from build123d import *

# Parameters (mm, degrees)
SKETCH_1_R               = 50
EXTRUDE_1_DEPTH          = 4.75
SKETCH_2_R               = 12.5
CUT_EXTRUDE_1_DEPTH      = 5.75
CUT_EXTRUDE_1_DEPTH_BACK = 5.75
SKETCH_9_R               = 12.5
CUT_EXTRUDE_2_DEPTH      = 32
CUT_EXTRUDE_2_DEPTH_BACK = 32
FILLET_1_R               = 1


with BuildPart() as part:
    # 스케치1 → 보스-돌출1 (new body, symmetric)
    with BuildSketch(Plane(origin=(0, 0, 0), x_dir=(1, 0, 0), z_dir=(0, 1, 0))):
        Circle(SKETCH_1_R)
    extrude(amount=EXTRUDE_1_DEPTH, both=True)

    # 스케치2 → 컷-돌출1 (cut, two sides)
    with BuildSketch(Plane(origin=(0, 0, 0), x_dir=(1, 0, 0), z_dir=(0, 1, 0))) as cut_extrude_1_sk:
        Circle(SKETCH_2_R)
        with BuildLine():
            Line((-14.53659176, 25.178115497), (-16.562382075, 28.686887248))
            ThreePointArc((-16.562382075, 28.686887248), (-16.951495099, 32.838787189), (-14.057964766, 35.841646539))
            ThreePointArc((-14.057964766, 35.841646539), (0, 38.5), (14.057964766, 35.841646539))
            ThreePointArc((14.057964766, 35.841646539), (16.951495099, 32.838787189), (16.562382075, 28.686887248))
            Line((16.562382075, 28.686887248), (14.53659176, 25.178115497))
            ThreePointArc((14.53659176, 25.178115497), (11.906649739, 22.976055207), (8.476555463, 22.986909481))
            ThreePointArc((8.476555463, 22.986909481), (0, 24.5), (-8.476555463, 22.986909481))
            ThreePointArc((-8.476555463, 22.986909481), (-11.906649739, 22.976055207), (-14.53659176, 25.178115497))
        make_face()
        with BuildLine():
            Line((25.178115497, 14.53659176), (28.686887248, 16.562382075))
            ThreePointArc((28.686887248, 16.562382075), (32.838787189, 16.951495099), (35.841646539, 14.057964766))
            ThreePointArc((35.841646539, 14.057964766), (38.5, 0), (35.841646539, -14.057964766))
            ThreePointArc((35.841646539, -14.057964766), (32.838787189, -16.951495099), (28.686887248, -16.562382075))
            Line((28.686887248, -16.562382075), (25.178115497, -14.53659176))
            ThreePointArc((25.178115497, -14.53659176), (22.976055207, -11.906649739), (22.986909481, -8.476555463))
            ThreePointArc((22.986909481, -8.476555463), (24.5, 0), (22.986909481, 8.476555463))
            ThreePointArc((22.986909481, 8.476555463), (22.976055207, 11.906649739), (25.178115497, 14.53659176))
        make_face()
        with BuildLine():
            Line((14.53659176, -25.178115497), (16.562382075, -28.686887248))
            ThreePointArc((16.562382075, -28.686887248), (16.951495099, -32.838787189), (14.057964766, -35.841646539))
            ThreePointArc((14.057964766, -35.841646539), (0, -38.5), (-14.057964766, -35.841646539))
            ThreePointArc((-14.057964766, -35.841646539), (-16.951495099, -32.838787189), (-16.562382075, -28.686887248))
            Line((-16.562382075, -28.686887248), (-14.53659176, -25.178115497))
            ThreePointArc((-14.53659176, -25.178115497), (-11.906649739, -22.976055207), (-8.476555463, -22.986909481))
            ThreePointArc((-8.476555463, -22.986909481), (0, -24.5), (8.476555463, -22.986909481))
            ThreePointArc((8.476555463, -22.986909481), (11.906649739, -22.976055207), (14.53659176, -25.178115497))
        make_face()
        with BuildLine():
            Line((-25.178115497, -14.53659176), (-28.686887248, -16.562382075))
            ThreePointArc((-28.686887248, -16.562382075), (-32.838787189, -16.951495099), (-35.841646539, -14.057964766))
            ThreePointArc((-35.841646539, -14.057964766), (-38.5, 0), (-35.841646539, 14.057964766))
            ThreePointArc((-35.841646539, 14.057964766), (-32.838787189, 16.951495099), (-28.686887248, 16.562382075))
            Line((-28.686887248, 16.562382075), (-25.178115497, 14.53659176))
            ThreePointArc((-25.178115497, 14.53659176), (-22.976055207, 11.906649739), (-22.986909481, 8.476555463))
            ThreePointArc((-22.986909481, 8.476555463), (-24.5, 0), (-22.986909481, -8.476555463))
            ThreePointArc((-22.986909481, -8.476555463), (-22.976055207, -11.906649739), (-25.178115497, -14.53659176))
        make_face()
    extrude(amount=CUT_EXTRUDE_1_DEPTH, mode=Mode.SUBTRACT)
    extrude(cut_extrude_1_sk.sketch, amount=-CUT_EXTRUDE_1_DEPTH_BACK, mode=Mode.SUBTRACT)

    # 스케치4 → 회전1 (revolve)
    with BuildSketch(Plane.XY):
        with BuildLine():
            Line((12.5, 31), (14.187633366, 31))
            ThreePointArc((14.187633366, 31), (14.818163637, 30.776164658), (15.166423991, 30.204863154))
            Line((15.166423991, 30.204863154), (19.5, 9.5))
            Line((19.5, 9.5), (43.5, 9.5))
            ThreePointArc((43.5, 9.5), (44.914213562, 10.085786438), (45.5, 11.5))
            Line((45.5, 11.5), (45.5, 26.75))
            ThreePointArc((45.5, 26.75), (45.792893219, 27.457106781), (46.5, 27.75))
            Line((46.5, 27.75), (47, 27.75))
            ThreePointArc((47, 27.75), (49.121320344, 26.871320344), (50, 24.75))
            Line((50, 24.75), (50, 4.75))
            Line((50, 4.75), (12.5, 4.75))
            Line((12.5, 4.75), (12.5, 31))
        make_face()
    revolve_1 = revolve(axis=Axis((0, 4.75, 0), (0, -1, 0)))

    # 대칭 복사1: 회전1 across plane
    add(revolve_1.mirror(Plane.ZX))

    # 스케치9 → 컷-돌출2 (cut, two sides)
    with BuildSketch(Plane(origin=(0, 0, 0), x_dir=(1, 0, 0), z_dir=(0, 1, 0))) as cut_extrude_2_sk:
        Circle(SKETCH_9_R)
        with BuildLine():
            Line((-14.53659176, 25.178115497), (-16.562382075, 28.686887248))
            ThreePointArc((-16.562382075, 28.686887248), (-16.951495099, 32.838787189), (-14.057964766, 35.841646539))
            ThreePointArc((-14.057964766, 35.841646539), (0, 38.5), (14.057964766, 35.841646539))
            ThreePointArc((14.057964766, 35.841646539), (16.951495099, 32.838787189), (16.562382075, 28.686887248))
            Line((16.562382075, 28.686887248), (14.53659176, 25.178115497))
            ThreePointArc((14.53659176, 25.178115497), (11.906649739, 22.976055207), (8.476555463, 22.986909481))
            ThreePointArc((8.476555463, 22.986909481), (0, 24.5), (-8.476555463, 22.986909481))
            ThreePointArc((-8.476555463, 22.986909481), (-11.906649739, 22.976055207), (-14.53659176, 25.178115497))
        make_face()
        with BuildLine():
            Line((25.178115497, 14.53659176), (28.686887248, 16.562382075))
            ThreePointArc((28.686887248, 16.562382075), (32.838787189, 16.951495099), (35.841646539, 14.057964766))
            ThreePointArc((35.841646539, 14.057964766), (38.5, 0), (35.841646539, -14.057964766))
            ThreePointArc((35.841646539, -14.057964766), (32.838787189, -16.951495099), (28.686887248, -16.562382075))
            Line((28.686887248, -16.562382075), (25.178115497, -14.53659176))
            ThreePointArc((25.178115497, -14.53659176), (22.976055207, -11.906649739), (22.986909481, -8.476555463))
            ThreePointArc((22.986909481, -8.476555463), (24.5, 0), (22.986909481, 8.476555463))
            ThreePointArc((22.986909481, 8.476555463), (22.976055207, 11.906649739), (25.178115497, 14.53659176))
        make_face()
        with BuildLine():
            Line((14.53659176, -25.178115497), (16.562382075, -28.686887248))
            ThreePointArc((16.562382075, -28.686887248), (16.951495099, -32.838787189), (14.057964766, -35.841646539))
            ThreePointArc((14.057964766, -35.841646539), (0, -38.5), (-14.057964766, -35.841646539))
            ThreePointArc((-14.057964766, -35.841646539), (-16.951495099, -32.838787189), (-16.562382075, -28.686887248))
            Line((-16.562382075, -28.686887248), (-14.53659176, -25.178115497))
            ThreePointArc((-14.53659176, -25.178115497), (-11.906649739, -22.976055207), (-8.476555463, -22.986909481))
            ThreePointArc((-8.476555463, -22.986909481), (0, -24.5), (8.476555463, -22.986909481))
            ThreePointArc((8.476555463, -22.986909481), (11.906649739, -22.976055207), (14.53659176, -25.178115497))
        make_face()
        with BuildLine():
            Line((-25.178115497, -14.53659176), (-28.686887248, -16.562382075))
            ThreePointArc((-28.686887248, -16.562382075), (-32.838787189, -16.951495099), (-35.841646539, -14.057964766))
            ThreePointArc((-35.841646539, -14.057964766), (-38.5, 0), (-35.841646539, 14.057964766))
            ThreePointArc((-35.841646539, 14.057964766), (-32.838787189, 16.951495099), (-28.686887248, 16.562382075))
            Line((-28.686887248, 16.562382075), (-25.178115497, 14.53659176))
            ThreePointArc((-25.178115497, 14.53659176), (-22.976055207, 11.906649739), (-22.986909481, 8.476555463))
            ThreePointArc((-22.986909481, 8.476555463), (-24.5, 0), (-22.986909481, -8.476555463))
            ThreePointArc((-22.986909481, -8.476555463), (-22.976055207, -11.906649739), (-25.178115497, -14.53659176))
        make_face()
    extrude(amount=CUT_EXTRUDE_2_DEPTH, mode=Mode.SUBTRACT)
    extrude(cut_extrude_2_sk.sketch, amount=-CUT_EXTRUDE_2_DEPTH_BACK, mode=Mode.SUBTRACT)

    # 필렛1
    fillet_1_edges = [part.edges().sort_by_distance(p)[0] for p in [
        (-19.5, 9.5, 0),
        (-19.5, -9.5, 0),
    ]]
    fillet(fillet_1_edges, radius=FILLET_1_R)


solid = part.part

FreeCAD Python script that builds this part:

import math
import FreeCAD as App
import Part
import Sketcher
from FreeCAD import Vector
Q = App.Units.Quantity


def edges_at(feature, points):
    """Names of the edges that pass closest to the given points."""
    edges = feature.Shape.Edges
    near = lambda p: min(range(len(edges)), key=lambda i: edges[i].distToShape(Part.Vertex(*p))[0])
    return sorted({f"Edge{near(p) + 1}" for p in points})

doc = App.newDocument("Part")
body = doc.addObject("PartDesign::Body", "Body")

# Sketch on XZ plane
sketch1 = body.newObject("Sketcher::SketchObject", "Sketch")
sketch1.AttachmentSupport = (doc.getObject("XZ_Plane"), [""])
sketch1.MapMode = "FlatFace"
sketch1.addGeometry(Part.Circle(Vector(0, 0, 0), Vector(0, 0, 1), 50), False)
sketch1.addConstraint([
    Sketcher.Constraint("Coincident", 0, 3, -1, 1),
    Sketcher.Constraint("Diameter", 0, 100.0),
])
pad1 = body.newObject("PartDesign::Pad", "Pad")
pad1.Profile = sketch1
pad1.Length = 9.5
pad1.Midplane = True

# Sketch on XZ plane
sketch2 = body.newObject("Sketcher::SketchObject", "Sketch001")
sketch2.AttachmentSupport = (doc.getObject("XZ_Plane"), [""])
sketch2.MapMode = "FlatFace"
sketch2.addGeometry([
    Part.Circle(Vector(0, 0, 0), Vector(0, 0, 1), 12.5),  # 0
    Part.LineSegment(Vector(-16.562382, -28.686887, 0), Vector(-14.536592, -25.178115, 0)),  # 1
    Part.ArcOfCircle(Part.Circle(Vector(-10.206465, -27.678115, 0), Vector(0, 0, 1), 5), math.radians(69.758257), math.radians(150)),  # 2
    Part.ArcOfCircle(Part.Circle(Vector(0, 0, 0), Vector(0, 0, 1), 24.5), math.radians(-110.241743), math.radians(-69.758257)),  # 3
    Part.ArcOfCircle(Part.Circle(Vector(10.206465, -27.678115, 0), Vector(0, 0, 1), 5), math.radians(30), math.radians(110.241743)),  # 4
    Part.LineSegment(Vector(14.536592, -25.178115, 0), Vector(16.562382, -28.686887, 0)),  # 5
    Part.ArcOfCircle(Part.Circle(Vector(12.232255, -31.186887, 0), Vector(0, 0, 1), 5), math.radians(-68.583682), math.radians(30)),  # 6
    Part.ArcOfCircle(Part.Circle(Vector(0, 0, 0), Vector(0, 0, 1), 38.5), math.radians(-111.416318), math.radians(-68.583682)),  # 7
    Part.ArcOfCircle(Part.Circle(Vector(-12.232255, -31.186887, 0), Vector(0, 0, 1), 5), math.radians(150), math.radians(248.583682)),  # 8
    Part.LineSegment(Vector(28.686887, -16.562382, 0), Vector(25.178115, -14.536592, 0)),  # 9
    Part.ArcOfCircle(Part.Circle(Vector(27.678115, -10.206465, 0), Vector(0, 0, 1), 5), math.radians(159.758257), math.radians(240)),  # 10
    Part.ArcOfCircle(Part.Circle(Vector(0, 0, 0), Vector(0, 0, 1), 24.5), math.radians(-20.241743), math.radians(20.241743)),  # 11
    Part.ArcOfCircle(Part.Circle(Vector(27.678115, 10.206465, 0), Vector(0, 0, 1), 5), math.radians(120), math.radians(200.241743)),  # 12
    Part.LineSegment(Vector(25.178115, 14.536592, 0), Vector(28.686887, 16.562382, 0)),  # 13
    Part.ArcOfCircle(Part.Circle(Vector(31.186887, 12.232255, 0), Vector(0, 0, 1), 5), math.radians(21.416318), math.radians(120)),  # 14
    Part.ArcOfCircle(Part.Circle(Vector(0, 0, 0), Vector(0, 0, 1), 38.5), math.radians(-21.416318), math.radians(21.416318)),  # 15
    Part.ArcOfCircle(Part.Circle(Vector(31.186887, -12.232255, 0), Vector(0, 0, 1), 5), math.radians(-120), math.radians(-21.416318)),  # 16
    Part.LineSegment(Vector(16.562382, 28.686887, 0), Vector(14.536592, 25.178115, 0)),  # 17
    Part.ArcOfCircle(Part.Circle(Vector(10.206465, 27.678115, 0), Vector(0, 0, 1), 5), math.radians(-110.241743), math.radians(-30)),  # 18
    Part.ArcOfCircle(Part.Circle(Vector(0, 0, 0), Vector(0, 0, 1), 24.5), math.radians(69.758257), math.radians(110.241743)),  # 19
    Part.ArcOfCircle(Part.Circle(Vector(-10.206465, 27.678115, 0), Vector(0, 0, 1), 5), math.radians(-150), math.radians(-69.758257)),  # 20
    Part.LineSegment(Vector(-14.536592, 25.178115, 0), Vector(-16.562382, 28.686887, 0)),  # 21
    Part.ArcOfCircle(Part.Circle(Vector(-12.232255, 31.186887, 0), Vector(0, 0, 1), 5), math.radians(111.416318), math.radians(210)),  # 22
    Part.ArcOfCircle(Part.Circle(Vector(0, 0, 0), Vector(0, 0, 1), 38.5), math.radians(68.583682), math.radians(111.416318)),  # 23
    Part.ArcOfCircle(Part.Circle(Vector(12.232255, 31.186887, 0), Vector(0, 0, 1), 5), math.radians(-30), math.radians(68.583682)),  # 24
    Part.LineSegment(Vector(-28.686887, 16.562382, 0), Vector(-25.178115, 14.536592, 0)),  # 25
    Part.ArcOfCircle(Part.Circle(Vector(-27.678115, 10.206465, 0), Vector(0, 0, 1), 5), math.radians(-20.241743), math.radians(60)),  # 26
    Part.ArcOfCircle(Part.Circle(Vector(0, 0, 0), Vector(0, 0, 1), 24.5), math.radians(159.758257), math.radians(200.241743)),  # 27
    Part.ArcOfCircle(Part.Circle(Vector(-27.678115, -10.206465, 0), Vector(0, 0, 1), 5), math.radians(-60), math.radians(20.241743)),  # 28
    Part.LineSegment(Vector(-25.178115, -14.536592, 0), Vector(-28.686887, -16.562382, 0)),  # 29
    Part.ArcOfCircle(Part.Circle(Vector(-31.186887, -12.232255, 0), Vector(0, 0, 1), 5), math.radians(-158.583682), math.radians(-60)),  # 30
    Part.ArcOfCircle(Part.Circle(Vector(0, 0, 0), Vector(0, 0, 1), 38.5), math.radians(158.583682), math.radians(201.416318)),  # 31
    Part.ArcOfCircle(Part.Circle(Vector(-31.186887, 12.232255, 0), Vector(0, 0, 1), 5), math.radians(60), math.radians(158.583682)),  # 32
], False)
sketch2.addConstraint([
    Sketcher.Constraint("Tangent", 1, 2, 2, 2),
    Sketcher.Constraint("Tangent", 2, 1, 3, 1),
    Sketcher.Constraint("Tangent", 3, 2, 4, 2),
    Sketcher.Constraint("Tangent", 4, 1, 5, 1),
    Sketcher.Constraint("Tangent", 5, 2, 6, 2),
    Sketcher.Constraint("Tangent", 6, 1, 7, 2),
    Sketcher.Constraint("Tangent", 7, 1, 8, 2),
    Sketcher.Constraint("Tangent", 8, 1, 1, 1),
    Sketcher.Constraint("Tangent", 9, 2, 10, 2),
    Sketcher.Constraint("Tangent", 10, 1, 11, 1),
    Sketcher.Constraint("Tangent", 11, 2, 12, 2),
    Sketcher.Constraint("Tangent", 12, 1, 13, 1),
    Sketcher.Constraint("Tangent", 13, 2, 14, 2),
    Sketcher.Constraint("Tangent", 14, 1, 15, 2),
    Sketcher.Constraint("Tangent", 15, 1, 16, 2),
    Sketcher.Constraint("Tangent", 16, 1, 9, 1),
    Sketcher.Constraint("Tangent", 17, 2, 18, 2),
    Sketcher.Constraint("Tangent", 18, 1, 19, 1),
    Sketcher.Constraint("Tangent", 19, 2, 20, 2),
    Sketcher.Constraint("Tangent", 20, 1, 21, 1),
    Sketcher.Constraint("Tangent", 21, 2, 22, 2),
    Sketcher.Constraint("Tangent", 22, 1, 23, 2),
    Sketcher.Constraint("Tangent", 23, 1, 24, 2),
    Sketcher.Constraint("Tangent", 24, 1, 17, 1),
    Sketcher.Constraint("Tangent", 25, 2, 26, 2),
    Sketcher.Constraint("Tangent", 26, 1, 27, 1),
    Sketcher.Constraint("Tangent", 27, 2, 28, 2),
    Sketcher.Constraint("Tangent", 28, 1, 29, 1),
    Sketcher.Constraint("Tangent", 29, 2, 30, 2),
    Sketcher.Constraint("Tangent", 30, 1, 31, 2),
    Sketcher.Constraint("Tangent", 31, 1, 32, 2),
    Sketcher.Constraint("Tangent", 32, 1, 25, 1),
    Sketcher.Constraint("Coincident", 0, 3, -1, 1),
    Sketcher.Constraint("Coincident", 3, 3, -1, 1),
    Sketcher.Constraint("Coincident", 7, 3, -1, 1),
    Sketcher.Constraint("Coincident", 11, 3, -1, 1),
    Sketcher.Constraint("Coincident", 15, 3, -1, 1),
    Sketcher.Constraint("Coincident", 19, 3, -1, 1),
    Sketcher.Constraint("Coincident", 23, 3, -1, 1),
    Sketcher.Constraint("Coincident", 27, 3, -1, 1),
    Sketcher.Constraint("Coincident", 31, 3, -1, 1),
    Sketcher.Constraint("Equal", 2, 4),
    Sketcher.Constraint("Equal", 4, 6),
    Sketcher.Constraint("Equal", 6, 8),
    Sketcher.Constraint("Equal", 8, 10),
    Sketcher.Constraint("Equal", 3, 11),
    Sketcher.Constraint("Equal", 10, 12),
    Sketcher.Constraint("Equal", 12, 14),
    Sketcher.Constraint("Equal", 7, 15),
    Sketcher.Constraint("Equal", 14, 16),
    Sketcher.Constraint("Equal", 16, 18),
    Sketcher.Constraint("Equal", 11, 19),
    Sketcher.Constraint("Equal", 18, 20),
    Sketcher.Constraint("Equal", 20, 22),
    Sketcher.Constraint("Equal", 15, 23),
    Sketcher.Constraint("Equal", 22, 24),
    Sketcher.Constraint("Equal", 24, 26),
    Sketcher.Constraint("Equal", 19, 27),
    Sketcher.Constraint("Equal", 26, 28),
    Sketcher.Constraint("Equal", 28, 30),
    Sketcher.Constraint("Equal", 23, 31),
    Sketcher.Constraint("Equal", 30, 32),
    Sketcher.Constraint("Symmetric", 1, 2, 17, 2, -1, 1),
    Sketcher.Constraint("Symmetric", 4, 1, 20, 1, -1, 1),
    Sketcher.Constraint("Symmetric", 9, 2, 25, 2, -1, 1),
    Sketcher.Constraint("Symmetric", 12, 1, 28, 1, -1, 1),
    Sketcher.Constraint("Symmetric", 1, 2, 4, 1, -2),
    Sketcher.Constraint("Symmetric", 12, 1, 25, 2, -2),
    Sketcher.Constraint("Perpendicular", 1, 9),
    Sketcher.Constraint("Equal", 5, 9),
    Sketcher.Constraint("Diameter", 0, 25.0),
    Sketcher.Constraint("Radius", 2, 5.0),
    Sketcher.Constraint("Radius", 3, 24.5),
    Sketcher.Constraint("Radius", 7, 38.5),
    Sketcher.Constraint("Angle", 1, Q("60 deg")),
    Sketcher.Constraint("DistanceX", 8, 3, 2, 1, 3.7557),
])
pocket1 = body.newObject("PartDesign::Pocket", "Pocket")
pocket1.Profile = sketch2
pocket1.Type = "ThroughAll"
pocket1.Midplane = True

# Sketch on XY plane
sketch3 = body.newObject("Sketcher::SketchObject", "Sketch002")
sketch3.AttachmentSupport = (doc.getObject("XY_Plane"), [""])
sketch3.MapMode = "FlatFace"
sketch3.addGeometry([
    Part.LineSegment(Vector(14.187633, 31, 0), Vector(12.5, 31, 0)),  # 0
    Part.LineSegment(Vector(12.5, 31, 0), Vector(12.5, 4.75, 0)),  # 1
    Part.LineSegment(Vector(12.5, 4.75, 0), Vector(50, 4.75, 0)),  # 2
    Part.LineSegment(Vector(50, 4.75, 0), Vector(50, 24.75, 0)),  # 3
    Part.ArcOfCircle(Part.Circle(Vector(47, 24.75, 0), Vector(0, 0, 1), 3), math.radians(0), math.radians(90)),  # 4
    Part.LineSegment(Vector(47, 27.75, 0), Vector(46.5, 27.75, 0)),  # 5
    Part.ArcOfCircle(Part.Circle(Vector(46.5, 26.75, 0), Vector(0, 0, 1), 1), math.radians(90), math.radians(180)),  # 6
    Part.LineSegment(Vector(45.5, 26.75, 0), Vector(45.5, 11.5, 0)),  # 7
    Part.ArcOfCircle(Part.Circle(Vector(43.5, 11.5, 0), Vector(0, 0, 1), 2), math.radians(-90), math.radians(0)),  # 8
    Part.LineSegment(Vector(43.5, 9.5, 0), Vector(19.5, 9.5, 0)),  # 9
    Part.LineSegment(Vector(19.5, 9.5, 0), Vector(15.166424, 30.204863, 0)),  # 10
    Part.ArcOfCircle(Part.Circle(Vector(14.187633, 30, 0), Vector(0, 0, 1), 1), math.radians(11.821488), math.radians(90)),  # 11
], False)
sketch3.addConstraint([
    Sketcher.Constraint("Coincident", 0, 2, 1, 1),
    Sketcher.Constraint("Coincident", 1, 2, 2, 1),
    Sketcher.Constraint("Coincident", 2, 2, 3, 1),
    Sketcher.Constraint("Tangent", 3, 2, 4, 1),
    Sketcher.Constraint("Tangent", 4, 2, 5, 1),
    Sketcher.Constraint("Tangent", 5, 2, 6, 1),
    Sketcher.Constraint("Tangent", 6, 2, 7, 1),
    Sketcher.Constraint("Tangent", 7, 2, 8, 2),
    Sketcher.Constraint("Tangent", 8, 1, 9, 1),
    Sketcher.Constraint("Coincident", 9, 2, 10, 1),
    Sketcher.Constraint("Tangent", 10, 2, 11, 1),
    Sketcher.Constraint("Tangent", 11, 2, 0, 1),
    Sketcher.Constraint("Horizontal", 0),
    Sketcher.Constraint("Vertical", 1),
    Sketcher.Constraint("Horizontal", 2),
    Sketcher.Constraint("Vertical", 3),
    Sketcher.Constraint("Horizontal", 5),
    Sketcher.Constraint("Vertical", 7),
    Sketcher.Constraint("Horizontal", 9),
    Sketcher.Constraint("Equal", 6, 11),
    Sketcher.Constraint("Radius", 4, 3.0),
    Sketcher.Constraint("Radius", 6, 1.0),
    Sketcher.Constraint("Radius", 8, 2.0),
    Sketcher.Constraint("DistanceX", 9, 2, 9, 1, 24.0),
    Sketcher.Constraint("DistanceY", 3, 1, 3, 2, 20.0),
    Sketcher.Constraint("DistanceX", 2, 1, 2, 2, 37.5),
    Sketcher.Constraint("DistanceX", 5, 2, 5, 1, 0.5),
    Sketcher.Constraint("DistanceX", -1, 1, 4, 3, 47.0),
    Sketcher.Constraint("DistanceY", -1, 1, 11, 3, 30.0),
    Sketcher.Constraint("DistanceY", 1, 2, 1, 1, 26.25),
    Sketcher.Constraint("DistanceY", 7, 2, 7, 1, 15.25),
    Sketcher.Constraint("DistanceX", 0, 2, 0, 1, 1.687633),
])
revolution = body.newObject("PartDesign::Revolution", "Revolution")
revolution.Profile = sketch3
revolution.ReferenceAxis = (sketch3, ["V_Axis"])
revolution.Angle = 360
doc.recompute()

mirrored = body.newObject("PartDesign::Mirrored", "Mirrored")
mirrored.Originals = [revolution]
mirrored.MirrorPlane = (doc.getObject("XZ_Plane"), [""])
body.Tip = mirrored

# Sketch on XZ plane
sketch4 = body.newObject("Sketcher::SketchObject", "Sketch003")
sketch4.AttachmentSupport = (doc.getObject("XZ_Plane"), [""])
sketch4.MapMode = "FlatFace"
sketch4.addGeometry([
    Part.Circle(Vector(0, 0, 0), Vector(0, 0, 1), 12.5),  # 0
    Part.LineSegment(Vector(-16.562382, -28.686887, 0), Vector(-14.536592, -25.178115, 0)),  # 1
    Part.ArcOfCircle(Part.Circle(Vector(-10.206465, -27.678115, 0), Vector(0, 0, 1), 5), math.radians(69.758257), math.radians(150)),  # 2
    Part.ArcOfCircle(Part.Circle(Vector(0, 0, 0), Vector(0, 0, 1), 24.5), math.radians(-110.241743), math.radians(-69.758257)),  # 3
    Part.ArcOfCircle(Part.Circle(Vector(10.206465, -27.678115, 0), Vector(0, 0, 1), 5), math.radians(30), math.radians(110.241743)),  # 4
    Part.LineSegment(Vector(14.536592, -25.178115, 0), Vector(16.562382, -28.686887, 0)),  # 5
    Part.ArcOfCircle(Part.Circle(Vector(12.232255, -31.186887, 0), Vector(0, 0, 1), 5), math.radians(-68.583682), math.radians(30)),  # 6
    Part.ArcOfCircle(Part.Circle(Vector(0, 0, 0), Vector(0, 0, 1), 38.5), math.radians(-111.416318), math.radians(-68.583682)),  # 7
    Part.ArcOfCircle(Part.Circle(Vector(-12.232255, -31.186887, 0), Vector(0, 0, 1), 5), math.radians(150), math.radians(248.583682)),  # 8
    Part.LineSegment(Vector(28.686887, -16.562382, 0), Vector(25.178115, -14.536592, 0)),  # 9
    Part.ArcOfCircle(Part.Circle(Vector(27.678115, -10.206465, 0), Vector(0, 0, 1), 5), math.radians(159.758257), math.radians(240)),  # 10
    Part.ArcOfCircle(Part.Circle(Vector(0, 0, 0), Vector(0, 0, 1), 24.5), math.radians(-20.241743), math.radians(20.241743)),  # 11
    Part.ArcOfCircle(Part.Circle(Vector(27.678115, 10.206465, 0), Vector(0, 0, 1), 5), math.radians(120), math.radians(200.241743)),  # 12
    Part.LineSegment(Vector(25.178115, 14.536592, 0), Vector(28.686887, 16.562382, 0)),  # 13
    Part.ArcOfCircle(Part.Circle(Vector(31.186887, 12.232255, 0), Vector(0, 0, 1), 5), math.radians(21.416318), math.radians(120)),  # 14
    Part.ArcOfCircle(Part.Circle(Vector(0, 0, 0), Vector(0, 0, 1), 38.5), math.radians(-21.416318), math.radians(21.416318)),  # 15
    Part.ArcOfCircle(Part.Circle(Vector(31.186887, -12.232255, 0), Vector(0, 0, 1), 5), math.radians(-120), math.radians(-21.416318)),  # 16
    Part.LineSegment(Vector(16.562382, 28.686887, 0), Vector(14.536592, 25.178115, 0)),  # 17
    Part.ArcOfCircle(Part.Circle(Vector(10.206465, 27.678115, 0), Vector(0, 0, 1), 5), math.radians(-110.241743), math.radians(-30)),  # 18
    Part.ArcOfCircle(Part.Circle(Vector(0, 0, 0), Vector(0, 0, 1), 24.5), math.radians(69.758257), math.radians(110.241743)),  # 19
    Part.ArcOfCircle(Part.Circle(Vector(-10.206465, 27.678115, 0), Vector(0, 0, 1), 5), math.radians(-150), math.radians(-69.758257)),  # 20
    Part.LineSegment(Vector(-14.536592, 25.178115, 0), Vector(-16.562382, 28.686887, 0)),  # 21
    Part.ArcOfCircle(Part.Circle(Vector(-12.232255, 31.186887, 0), Vector(0, 0, 1), 5), math.radians(111.416318), math.radians(210)),  # 22
    Part.ArcOfCircle(Part.Circle(Vector(0, 0, 0), Vector(0, 0, 1), 38.5), math.radians(68.583682), math.radians(111.416318)),  # 23
    Part.ArcOfCircle(Part.Circle(Vector(12.232255, 31.186887, 0), Vector(0, 0, 1), 5), math.radians(-30), math.radians(68.583682)),  # 24
    Part.LineSegment(Vector(-28.686887, 16.562382, 0), Vector(-25.178115, 14.536592, 0)),  # 25
    Part.ArcOfCircle(Part.Circle(Vector(-27.678115, 10.206465, 0), Vector(0, 0, 1), 5), math.radians(-20.241743), math.radians(60)),  # 26
    Part.ArcOfCircle(Part.Circle(Vector(0, 0, 0), Vector(0, 0, 1), 24.5), math.radians(159.758257), math.radians(200.241743)),  # 27
    Part.ArcOfCircle(Part.Circle(Vector(-27.678115, -10.206465, 0), Vector(0, 0, 1), 5), math.radians(-60), math.radians(20.241743)),  # 28
    Part.LineSegment(Vector(-25.178115, -14.536592, 0), Vector(-28.686887, -16.562382, 0)),  # 29
    Part.ArcOfCircle(Part.Circle(Vector(-31.186887, -12.232255, 0), Vector(0, 0, 1), 5), math.radians(-158.583682), math.radians(-60)),  # 30
    Part.ArcOfCircle(Part.Circle(Vector(0, 0, 0), Vector(0, 0, 1), 38.5), math.radians(158.583682), math.radians(201.416318)),  # 31
    Part.ArcOfCircle(Part.Circle(Vector(-31.186887, 12.232255, 0), Vector(0, 0, 1), 5), math.radians(60), math.radians(158.583682)),  # 32
], False)
sketch4.addConstraint([
    Sketcher.Constraint("Tangent", 1, 2, 2, 2),
    Sketcher.Constraint("Tangent", 2, 1, 3, 1),
    Sketcher.Constraint("Tangent", 3, 2, 4, 2),
    Sketcher.Constraint("Tangent", 4, 1, 5, 1),
    Sketcher.Constraint("Tangent", 5, 2, 6, 2),
    Sketcher.Constraint("Tangent", 6, 1, 7, 2),
    Sketcher.Constraint("Tangent", 7, 1, 8, 2),
    Sketcher.Constraint("Tangent", 8, 1, 1, 1),
    Sketcher.Constraint("Tangent", 9, 2, 10, 2),
    Sketcher.Constraint("Tangent", 10, 1, 11, 1),
    Sketcher.Constraint("Tangent", 11, 2, 12, 2),
    Sketcher.Constraint("Tangent", 12, 1, 13, 1),
    Sketcher.Constraint("Tangent", 13, 2, 14, 2),
    Sketcher.Constraint("Tangent", 14, 1, 15, 2),
    Sketcher.Constraint("Tangent", 15, 1, 16, 2),
    Sketcher.Constraint("Tangent", 16, 1, 9, 1),
    Sketcher.Constraint("Tangent", 17, 2, 18, 2),
    Sketcher.Constraint("Tangent", 18, 1, 19, 1),
    Sketcher.Constraint("Tangent", 19, 2, 20, 2),
    Sketcher.Constraint("Tangent", 20, 1, 21, 1),
    Sketcher.Constraint("Tangent", 21, 2, 22, 2),
    Sketcher.Constraint("Tangent", 22, 1, 23, 2),
    Sketcher.Constraint("Tangent", 23, 1, 24, 2),
    Sketcher.Constraint("Tangent", 24, 1, 17, 1),
    Sketcher.Constraint("Tangent", 25, 2, 26, 2),
    Sketcher.Constraint("Tangent", 26, 1, 27, 1),
    Sketcher.Constraint("Tangent", 27, 2, 28, 2),
    Sketcher.Constraint("Tangent", 28, 1, 29, 1),
    Sketcher.Constraint("Tangent", 29, 2, 30, 2),
    Sketcher.Constraint("Tangent", 30, 1, 31, 2),
    Sketcher.Constraint("Tangent", 31, 1, 32, 2),
    Sketcher.Constraint("Tangent", 32, 1, 25, 1),
    Sketcher.Constraint("Coincident", 0, 3, -1, 1),
    Sketcher.Constraint("Coincident", 3, 3, -1, 1),
    Sketcher.Constraint("Coincident", 7, 3, -1, 1),
    Sketcher.Constraint("Coincident", 11, 3, -1, 1),
    Sketcher.Constraint("Coincident", 15, 3, -1, 1),
    Sketcher.Constraint("Coincident", 19, 3, -1, 1),
    Sketcher.Constraint("Coincident", 23, 3, -1, 1),
    Sketcher.Constraint("Coincident", 27, 3, -1, 1),
    Sketcher.Constraint("Coincident", 31, 3, -1, 1),
    Sketcher.Constraint("Equal", 2, 4),
    Sketcher.Constraint("Equal", 4, 6),
    Sketcher.Constraint("Equal", 6, 8),
    Sketcher.Constraint("Equal", 8, 10),
    Sketcher.Constraint("Equal", 3, 11),
    Sketcher.Constraint("Equal", 10, 12),
    Sketcher.Constraint("Equal", 12, 14),
    Sketcher.Constraint("Equal", 7, 15),
    Sketcher.Constraint("Equal", 14, 16),
    Sketcher.Constraint("Equal", 16, 18),
    Sketcher.Constraint("Equal", 11, 19),
    Sketcher.Constraint("Equal", 18, 20),
    Sketcher.Constraint("Equal", 20, 22),
    Sketcher.Constraint("Equal", 15, 23),
    Sketcher.Constraint("Equal", 22, 24),
    Sketcher.Constraint("Equal", 24, 26),
    Sketcher.Constraint("Equal", 19, 27),
    Sketcher.Constraint("Equal", 26, 28),
    Sketcher.Constraint("Equal", 28, 30),
    Sketcher.Constraint("Equal", 23, 31),
    Sketcher.Constraint("Equal", 30, 32),
    Sketcher.Constraint("Symmetric", 1, 2, 17, 2, -1, 1),
    Sketcher.Constraint("Symmetric", 4, 1, 20, 1, -1, 1),
    Sketcher.Constraint("Symmetric", 9, 2, 25, 2, -1, 1),
    Sketcher.Constraint("Symmetric", 12, 1, 28, 1, -1, 1),
    Sketcher.Constraint("Symmetric", 1, 2, 4, 1, -2),
    Sketcher.Constraint("Symmetric", 12, 1, 25, 2, -2),
    Sketcher.Constraint("Perpendicular", 1, 9),
    Sketcher.Constraint("Equal", 5, 9),
    Sketcher.Constraint("Diameter", 0, 25.0),
    Sketcher.Constraint("Radius", 2, 5.0),
    Sketcher.Constraint("Radius", 3, 24.5),
    Sketcher.Constraint("Radius", 7, 38.5),
    Sketcher.Constraint("Angle", 1, Q("60 deg")),
    Sketcher.Constraint("DistanceX", 8, 3, 2, 1, 3.7557),
])
pocket2 = body.newObject("PartDesign::Pocket", "Pocket001")
pocket2.Profile = sketch4
pocket2.Type = "ThroughAll"
pocket2.Midplane = True
doc.recompute()

fillet = body.newObject("PartDesign::Fillet", "Fillet")
fillet.Base = (pocket2, edges_at(pocket2, [(-19.5, 9.5, 0), (-19.5, -9.5, 0)]))
fillet.Radius = 1

doc.recompute()
